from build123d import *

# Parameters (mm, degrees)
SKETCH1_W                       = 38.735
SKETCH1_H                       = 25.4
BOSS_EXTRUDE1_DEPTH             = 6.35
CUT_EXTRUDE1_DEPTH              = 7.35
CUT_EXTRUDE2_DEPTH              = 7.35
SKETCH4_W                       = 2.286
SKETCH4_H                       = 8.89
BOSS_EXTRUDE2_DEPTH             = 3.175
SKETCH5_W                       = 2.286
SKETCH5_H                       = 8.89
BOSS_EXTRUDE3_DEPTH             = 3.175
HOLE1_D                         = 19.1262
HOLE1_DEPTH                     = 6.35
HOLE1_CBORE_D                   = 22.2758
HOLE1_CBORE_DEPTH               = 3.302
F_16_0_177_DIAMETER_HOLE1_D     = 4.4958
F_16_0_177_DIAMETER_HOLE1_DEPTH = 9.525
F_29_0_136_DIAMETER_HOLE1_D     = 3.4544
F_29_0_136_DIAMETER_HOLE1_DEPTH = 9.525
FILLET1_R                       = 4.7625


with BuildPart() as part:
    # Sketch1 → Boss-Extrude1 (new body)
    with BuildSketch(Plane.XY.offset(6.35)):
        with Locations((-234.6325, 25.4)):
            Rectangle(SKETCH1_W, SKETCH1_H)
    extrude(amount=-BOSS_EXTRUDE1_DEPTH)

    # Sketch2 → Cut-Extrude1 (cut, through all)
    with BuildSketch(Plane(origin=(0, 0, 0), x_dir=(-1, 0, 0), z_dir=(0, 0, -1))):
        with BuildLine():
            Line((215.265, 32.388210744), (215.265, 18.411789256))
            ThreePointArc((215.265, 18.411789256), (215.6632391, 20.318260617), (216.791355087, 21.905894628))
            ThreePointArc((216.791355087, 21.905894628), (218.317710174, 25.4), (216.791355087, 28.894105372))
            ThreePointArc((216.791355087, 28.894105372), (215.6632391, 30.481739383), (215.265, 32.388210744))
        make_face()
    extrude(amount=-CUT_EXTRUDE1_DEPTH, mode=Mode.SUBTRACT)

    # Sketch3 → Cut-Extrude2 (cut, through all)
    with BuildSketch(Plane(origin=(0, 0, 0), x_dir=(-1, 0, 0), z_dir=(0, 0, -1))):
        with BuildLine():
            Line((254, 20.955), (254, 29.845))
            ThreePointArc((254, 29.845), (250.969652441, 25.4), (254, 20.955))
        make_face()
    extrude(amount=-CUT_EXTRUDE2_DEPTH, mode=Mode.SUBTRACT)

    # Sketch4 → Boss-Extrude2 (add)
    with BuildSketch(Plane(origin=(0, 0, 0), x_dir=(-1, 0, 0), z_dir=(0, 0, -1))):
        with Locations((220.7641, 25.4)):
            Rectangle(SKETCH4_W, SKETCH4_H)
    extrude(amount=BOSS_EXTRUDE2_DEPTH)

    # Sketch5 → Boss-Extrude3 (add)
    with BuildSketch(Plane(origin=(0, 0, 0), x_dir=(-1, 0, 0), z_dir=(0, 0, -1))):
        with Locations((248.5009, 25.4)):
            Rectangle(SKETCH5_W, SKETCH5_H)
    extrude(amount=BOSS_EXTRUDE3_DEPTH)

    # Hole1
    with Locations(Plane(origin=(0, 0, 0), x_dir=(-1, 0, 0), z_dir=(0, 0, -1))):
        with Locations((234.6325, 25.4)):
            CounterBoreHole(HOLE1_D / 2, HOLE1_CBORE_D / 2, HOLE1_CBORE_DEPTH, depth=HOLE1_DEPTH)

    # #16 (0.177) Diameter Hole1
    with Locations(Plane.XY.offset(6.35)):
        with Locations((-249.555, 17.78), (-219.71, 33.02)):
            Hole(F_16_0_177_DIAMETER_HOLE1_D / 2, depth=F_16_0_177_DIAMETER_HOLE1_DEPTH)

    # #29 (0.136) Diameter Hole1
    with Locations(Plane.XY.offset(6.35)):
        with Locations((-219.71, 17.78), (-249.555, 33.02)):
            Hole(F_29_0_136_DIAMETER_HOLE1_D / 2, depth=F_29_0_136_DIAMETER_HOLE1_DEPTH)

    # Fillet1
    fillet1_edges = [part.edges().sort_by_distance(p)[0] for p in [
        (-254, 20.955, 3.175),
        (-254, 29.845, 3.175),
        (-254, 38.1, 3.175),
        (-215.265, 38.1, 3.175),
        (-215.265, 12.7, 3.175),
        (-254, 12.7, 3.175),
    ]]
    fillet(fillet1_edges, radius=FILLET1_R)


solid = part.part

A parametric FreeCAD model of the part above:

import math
import FreeCAD as App
import Part
import Sketcher
from FreeCAD import Vector
Q = App.Units.Quantity


def edges_at(feature, points):
    """Names of the edges that pass closest to the given points."""
    edges = feature.Shape.Edges
    near = lambda p: min(range(len(edges)), key=lambda i: edges[i].distToShape(Part.Vertex(*p))[0])
    return sorted({f"Edge{near(p) + 1}" for p in points})


def add_polygon(sketch, points):
    """Adds a closed chain of lines whose ends are joined by coincident constraints."""
    first, n = sketch.GeometryCount, len(points)
    for a, b in zip(points, points[1:] + points[:1]):
        sketch.addGeometry(Part.LineSegment(App.Vector(*a, 0), App.Vector(*b, 0)), False)
    for i in range(n):
        sketch.addConstraint(Sketcher.Constraint("Coincident", first + i, 2, first + (i + 1) % n, 1))

doc = App.newDocument("Part")
params = doc.addObject("Spreadsheet::Sheet", "Params")
for row, (alias, value) in enumerate([
    ("sketch1_height", "1 in"),
    ("sketch1_width", "1.525 in"),
    ("pad1_length", "0.25 in"),
    ("sketch2_radius", "0.1875 in"),
    ("sketch3_radius", "0.188 in"),
    ("sketch3_height", "0.35 in"),
    ("sketch4_width", "0.09 in"),
    ("sketch4_height", "0.35 in"),
    ("pad2_length", "0.125 in"),
    ("sketch5_width", "0.09 in"),
    ("sketch5_height", "0.35 in"),
    ("pad3_length", "0.125 in"),
    ("sketch6_diameter", "0.753 in"),
    ("hole_diameter", "0.753 in"),
    ("hole_depth", "0.25 in"),
    ("hole_cbore_diameter", "0.877 in"),
    ("hole_cbore_depth", "0.13 in"),
    ("sketch7_diameter", "0.177 in"),
    ("hole2_diameter", "0.177 in"),
    ("hole2_depth", "0.375 in"),
    ("sketch8_diameter", "0.136 in"),
    ("hole3_diameter", "0.136 in"),
    ("hole3_depth", "0.375 in"),
    ("fillet_radius", "0.1875 in"),
], start=1):
    params.set(f"A{row}", alias)
    params.set(f"B{row}", "=" + value)
    params.setAlias(f"B{row}", alias)

body = doc.addObject("PartDesign::Body", "Body")

sketch1 = body.newObject("Sketcher::SketchObject", "Sketch")
sketch1.AttachmentSupport = (doc.getObject("XY_Plane"), [""])
sketch1.MapMode = "FlatFace"
sketch1.AttachmentOffset = App.Placement(Vector(0, 0, 0.25 * 25.4), App.Rotation())
add_polygon(sketch1, [(-254, 38.1), (-254, 12.7), (-215.265, 12.7), (-215.265, 38.1)])
sketch1.addConstraint([
    Sketcher.Constraint("Vertical", 0),
    Sketcher.Constraint("Horizontal", 1),
    Sketcher.Constraint("Vertical", 2),
    Sketcher.Constraint("Horizontal", 3),
    Sketcher.Constraint("DistanceY", 0, 2, 0, 1, Q("1 in")),
    Sketcher.Constraint("DistanceX", 0, 2, -1, 1, Q("10 in")),
    Sketcher.Constraint("DistanceY", -1, 1, 0, 2, Q("0.5 in")),
    Sketcher.Constraint("DistanceX", 1, 1, 1, 2, Q("1.525 in")),
])
sketch1.setExpression("Constraints[8]", "Params.sketch1_height")
sketch1.setExpression("Constraints[11]", "Params.sketch1_width")
pad1 = body.newObject("PartDesign::Pad", "Pad")
pad1.Profile = sketch1
pad1.setExpression("Length", "Params.pad1_length")
pad1.Reversed = True

sketch2 = body.newObject("Sketcher::SketchObject", "Sketch001")
sketch2.AttachmentSupport = (doc.getObject("XY_Plane"), [""])
sketch2.MapMode = "FlatFace"
sketch2.addGeometry([
    Part.LineSegment(Vector(-215.265, 32.388211, 0), Vector(-215.265, 18.411789, 0)),
    Part.ArcOfCircle(Part.Circle(Vector(-220.0275, 18.411789, 0), Vector(0, 0, 1), 4.7625), math.radians(0), math.radians(47.194987)),
    Part.ArcOfCircle(Part.Circle(Vector(-213.55521, 25.4, 0), Vector(0, 0, 1), 4.7625), math.radians(132.805013), math.radians(227.194987)),
    Part.ArcOfCircle(Part.Circle(Vector(-220.0275, 32.388211, 0), Vector(0, 0, 1), 4.7625), math.radians(-47.194987), math.radians(0)),
], False)
sketch2.addConstraint([
    Sketcher.Constraint("Tangent", 0, 2, 1, 1),
    Sketcher.Constraint("Tangent", 1, 2, 2, 2),
    Sketcher.Constraint("Tangent", 2, 1, 3, 1),
    Sketcher.Constraint("Tangent", 3, 2, 0, 1),
    Sketcher.Constraint("Vertical", 0),
    Sketcher.Constraint("Equal", 1, 2),
    Sketcher.Constraint("Equal", 2, 3),
    Sketcher.Constraint("DistanceY", -1, 1, 2, 3, Q("1 in")),
    Sketcher.Constraint("Radius", 1, Q("0.1875 in")),
    Sketcher.Constraint("DistanceX", 0, 2, -1, 1, Q("8.475 in")),
    Sketcher.Constraint("DistanceY", 0, 2, 0, 1, 13.976421),
])
sketch2.setExpression("Constraints[8]", "Params.sketch2_radius")
pocket1 = body.newObject("PartDesign::Pocket", "Pocket")
pocket1.Profile = sketch2
pocket1.Type = "ThroughAll"
pocket1.Reversed = True

sketch3 = body.newObject("Sketcher::SketchObject", "Sketch002")
sketch3.AttachmentSupport = (doc.getObject("XY_Plane"), [""])
sketch3.MapMode = "FlatFace"
sketch3.addGeometry([
    Part.LineSegment(Vector(-254, 20.955, 0), Vector(-254, 29.845, 0)),
    Part.ArcOfCircle(Part.Circle(Vector(-255.744852, 25.4, 0), Vector(0, 0, 1), 4.7752), math.radians(-68.567871), math.radians(68.567871)),
], False)
sketch3.addConstraint([
    Sketcher.Constraint("Coincident", 0, 1, 1, 1),
    Sketcher.Constraint("Coincident", 1, 2, 0, 2),
    Sketcher.Constraint("Vertical", 0),
    Sketcher.Constraint("DistanceY", -1, 1, 1, 3, Q("1 in")),
    Sketcher.Constraint("DistanceX", 0, 1, -1, 1, Q("10 in")),
    Sketcher.Constraint("Radius", 1, Q("0.188 in")),
    Sketcher.Constraint("DistanceY", 0, 1, 0, 2, Q("0.35 in")),
])
sketch3.setExpression("Constraints[5]", "Params.sketch3_radius")
sketch3.setExpression("Constraints[6]", "Params.sketch3_height")
pocket2 = body.newObject("PartDesign::Pocket", "Pocket001")
pocket2.Profile = sketch3
pocket2.Type = "ThroughAll"
pocket2.Reversed = True

sketch4 = body.newObject("Sketcher::SketchObject", "Sketch003")
sketch4.AttachmentSupport = (doc.getObject("XY_Plane"), [""])
sketch4.MapMode = "FlatFace"
add_polygon(sketch4, [(-219.6211, 29.845), (-219.6211, 20.955), (-221.9071, 20.955), (-221.9071, 29.845)])
sketch4.addConstraint([
    Sketcher.Constraint("Vertical", 0),
    Sketcher.Constraint("Horizontal", 1),
    Sketcher.Constraint("Vertical", 2),
    Sketcher.Constraint("Horizontal", 3),
    Sketcher.Constraint("DistanceX", 1, 2, 1, 1, Q("0.09 in")),
    Sketcher.Constraint("DistanceY", 0, 2, 0, 1, Q("0.35 in")),
    Sketcher.Constraint("DistanceY", -1, 1, 0, 2, Q("0.825 in")),
    Sketcher.Constraint("DistanceX", 0, 2, -1, 1, Q("8.6465 in")),
])
sketch4.setExpression("Constraints[8]", "Params.sketch4_width")
sketch4.setExpression("Constraints[9]", "Params.sketch4_height")
pad2 = body.newObject("PartDesign::Pad", "Pad001")
pad2.Profile = sketch4
pad2.setExpression("Length", "Params.pad2_length")
pad2.Reversed = True

sketch5 = body.newObject("Sketcher::SketchObject", "Sketch004")
sketch5.AttachmentSupport = (doc.getObject("XY_Plane"), [""])
sketch5.MapMode = "FlatFace"
add_polygon(sketch5, [(-247.3579, 29.845), (-247.3579, 20.955), (-249.6439, 20.955), (-249.6439, 29.845)])
sketch5.addConstraint([
    Sketcher.Constraint("Vertical", 0),
    Sketcher.Constraint("Horizontal", 1),
    Sketcher.Constraint("Vertical", 2),
    Sketcher.Constraint("Horizontal", 3),
    Sketcher.Constraint("DistanceX", 1, 2, 1, 1, Q("0.09 in")),
    Sketcher.Constraint("DistanceY", 0, 2, 0, 1, Q("0.35 in")),
    Sketcher.Constraint("DistanceY", -1, 1, 0, 2, Q("0.825 in")),
    Sketcher.Constraint("DistanceX", 0, 2, -1, 1, Q("9.7385 in")),
])
sketch5.setExpression("Constraints[8]", "Params.sketch5_width")
sketch5.setExpression("Constraints[9]", "Params.sketch5_height")
pad3 = body.newObject("PartDesign::Pad", "Pad002")
pad3.Profile = sketch5
pad3.setExpression("Length", "Params.pad3_length")
pad3.Reversed = True

sketch6 = body.newObject("Sketcher::SketchObject", "Sketch005")
sketch6.AttachmentSupport = (doc.getObject("XY_Plane"), [""])
sketch6.MapMode = "FlatFace"
sketch6.addGeometry(Part.Circle(Vector(-234.6325, 25.4, 0), Vector(0, 0, 1), 9.5631), False)
sketch6.addConstraint([
    Sketcher.Constraint("Diameter", 0, Q("0.753 in")),
    Sketcher.Constraint("DistanceY", -1, 1, 0, 3, Q("1 in")),
    Sketcher.Constraint("DistanceX", 0, 3, -1, 1, Q("9.2375 in")),
])
sketch6.setExpression("Constraints[0]", "Params.sketch6_diameter")
doc.recompute()
hole = body.newObject("PartDesign::Hole", "Hole")
hole.Profile = sketch6
hole.ThreadType = "None"
hole.setExpression("Diameter", "Params.hole_diameter")
hole.DepthType = "Dimension"
hole.setExpression("Depth", "Params.hole_depth")
hole.DrillPoint = "Flat"
hole.HoleCutType = "Counterbore"
hole.setExpression("HoleCutDiameter", "Params.hole_cbore_diameter")
hole.setExpression("HoleCutDepth", "Params.hole_cbore_depth")
hole.Reversed = True

sketch7 = body.newObject("Sketcher::SketchObject", "Sketch006")
sketch7.AttachmentSupport = (doc.getObject("XY_Plane"), [""])
sketch7.MapMode = "FlatFace"
sketch7.AttachmentOffset = App.Placement(Vector(0, 0, 0.25 * 25.4), App.Rotation())
sketch7.addGeometry([
    Part.Circle(Vector(-249.555, 17.78, 0), Vector(0, 0, 1), 2.2479),
    Part.Circle(Vector(-219.71, 33.02, 0), Vector(0, 0, 1), 2.2479),
], False)
sketch7.addConstraint([
    Sketcher.Constraint("Equal", 0, 1),
    Sketcher.Constraint("Diameter", 0, Q("0.177 in")),
    Sketcher.Constraint("DistanceY", -1, 1, 0, 3, Q("0.7 in")),
    Sketcher.Constraint("DistanceY", -1, 1, 1, 3, Q("1.3 in")),
    Sketcher.Constraint("DistanceX", 1, 3, -1, 1, Q("8.65 in")),
    Sketcher.Constraint("DistanceX", 0, 3, -1, 1, Q("9.825 in")),
])
sketch7.setExpression("Constraints[1]", "Params.sketch7_diameter")
doc.recompute()
hole2 = body.newObject("PartDesign::Hole", "Hole001")
hole2.Profile = sketch7
hole2.ThreadType = "None"
hole2.setExpression("Diameter", "Params.hole2_diameter")
hole2.DepthType = "Dimension"
hole2.setExpression("Depth", "Params.hole2_depth")
hole2.DrillPoint = "Flat"

sketch8 = body.newObject("Sketcher::SketchObject", "Sketch007")
sketch8.AttachmentSupport = (doc.getObject("XY_Plane"), [""])
sketch8.MapMode = "FlatFace"
sketch8.AttachmentOffset = App.Placement(Vector(0, 0, 0.25 * 25.4), App.Rotation())
sketch8.addGeometry([
    Part.Circle(Vector(-219.71, 17.78, 0), Vector(0, 0, 1), 1.7272),
    Part.Circle(Vector(-249.555, 33.02, 0), Vector(0, 0, 1), 1.7272),
], False)
sketch8.addConstraint([
    Sketcher.Constraint("Equal", 0, 1),
    Sketcher.Constraint("Diameter", 0, Q("0.136 in")),
    Sketcher.Constraint("DistanceY", -1, 1, 0, 3, Q("0.7 in")),
    Sketcher.Constraint("DistanceY", -1, 1, 1, 3, Q("1.3 in")),
    Sketcher.Constraint("DistanceX", 0, 3, -1, 1, Q("8.65 in")),
    Sketcher.Constraint("DistanceX", 1, 3, -1, 1, Q("9.825 in")),
])
sketch8.setExpression("Constraints[1]", "Params.sketch8_diameter")
doc.recompute()
hole3 = body.newObject("PartDesign::Hole", "Hole002")
hole3.Profile = sketch8
hole3.ThreadType = "None"
hole3.setExpression("Diameter", "Params.hole3_diameter")
hole3.DepthType = "Dimension"
hole3.setExpression("Depth", "Params.hole3_depth")
hole3.DrillPoint = "Flat"
doc.recompute()

fillet = body.newObject("PartDesign::Fillet", "Fillet")
fillet.Base = (hole3, edges_at(hole3, [
    (-254, 20.955, 3.175),
    (-254, 29.845, 3.175),
    (-254, 38.1, 3.175),
    (-215.265, 38.1, 3.175),
    (-215.265, 12.7, 3.175),
    (-254, 12.7, 3.175),
]))
fillet.setExpression("Radius", "Params.fillet_radius")

doc.recompute()
